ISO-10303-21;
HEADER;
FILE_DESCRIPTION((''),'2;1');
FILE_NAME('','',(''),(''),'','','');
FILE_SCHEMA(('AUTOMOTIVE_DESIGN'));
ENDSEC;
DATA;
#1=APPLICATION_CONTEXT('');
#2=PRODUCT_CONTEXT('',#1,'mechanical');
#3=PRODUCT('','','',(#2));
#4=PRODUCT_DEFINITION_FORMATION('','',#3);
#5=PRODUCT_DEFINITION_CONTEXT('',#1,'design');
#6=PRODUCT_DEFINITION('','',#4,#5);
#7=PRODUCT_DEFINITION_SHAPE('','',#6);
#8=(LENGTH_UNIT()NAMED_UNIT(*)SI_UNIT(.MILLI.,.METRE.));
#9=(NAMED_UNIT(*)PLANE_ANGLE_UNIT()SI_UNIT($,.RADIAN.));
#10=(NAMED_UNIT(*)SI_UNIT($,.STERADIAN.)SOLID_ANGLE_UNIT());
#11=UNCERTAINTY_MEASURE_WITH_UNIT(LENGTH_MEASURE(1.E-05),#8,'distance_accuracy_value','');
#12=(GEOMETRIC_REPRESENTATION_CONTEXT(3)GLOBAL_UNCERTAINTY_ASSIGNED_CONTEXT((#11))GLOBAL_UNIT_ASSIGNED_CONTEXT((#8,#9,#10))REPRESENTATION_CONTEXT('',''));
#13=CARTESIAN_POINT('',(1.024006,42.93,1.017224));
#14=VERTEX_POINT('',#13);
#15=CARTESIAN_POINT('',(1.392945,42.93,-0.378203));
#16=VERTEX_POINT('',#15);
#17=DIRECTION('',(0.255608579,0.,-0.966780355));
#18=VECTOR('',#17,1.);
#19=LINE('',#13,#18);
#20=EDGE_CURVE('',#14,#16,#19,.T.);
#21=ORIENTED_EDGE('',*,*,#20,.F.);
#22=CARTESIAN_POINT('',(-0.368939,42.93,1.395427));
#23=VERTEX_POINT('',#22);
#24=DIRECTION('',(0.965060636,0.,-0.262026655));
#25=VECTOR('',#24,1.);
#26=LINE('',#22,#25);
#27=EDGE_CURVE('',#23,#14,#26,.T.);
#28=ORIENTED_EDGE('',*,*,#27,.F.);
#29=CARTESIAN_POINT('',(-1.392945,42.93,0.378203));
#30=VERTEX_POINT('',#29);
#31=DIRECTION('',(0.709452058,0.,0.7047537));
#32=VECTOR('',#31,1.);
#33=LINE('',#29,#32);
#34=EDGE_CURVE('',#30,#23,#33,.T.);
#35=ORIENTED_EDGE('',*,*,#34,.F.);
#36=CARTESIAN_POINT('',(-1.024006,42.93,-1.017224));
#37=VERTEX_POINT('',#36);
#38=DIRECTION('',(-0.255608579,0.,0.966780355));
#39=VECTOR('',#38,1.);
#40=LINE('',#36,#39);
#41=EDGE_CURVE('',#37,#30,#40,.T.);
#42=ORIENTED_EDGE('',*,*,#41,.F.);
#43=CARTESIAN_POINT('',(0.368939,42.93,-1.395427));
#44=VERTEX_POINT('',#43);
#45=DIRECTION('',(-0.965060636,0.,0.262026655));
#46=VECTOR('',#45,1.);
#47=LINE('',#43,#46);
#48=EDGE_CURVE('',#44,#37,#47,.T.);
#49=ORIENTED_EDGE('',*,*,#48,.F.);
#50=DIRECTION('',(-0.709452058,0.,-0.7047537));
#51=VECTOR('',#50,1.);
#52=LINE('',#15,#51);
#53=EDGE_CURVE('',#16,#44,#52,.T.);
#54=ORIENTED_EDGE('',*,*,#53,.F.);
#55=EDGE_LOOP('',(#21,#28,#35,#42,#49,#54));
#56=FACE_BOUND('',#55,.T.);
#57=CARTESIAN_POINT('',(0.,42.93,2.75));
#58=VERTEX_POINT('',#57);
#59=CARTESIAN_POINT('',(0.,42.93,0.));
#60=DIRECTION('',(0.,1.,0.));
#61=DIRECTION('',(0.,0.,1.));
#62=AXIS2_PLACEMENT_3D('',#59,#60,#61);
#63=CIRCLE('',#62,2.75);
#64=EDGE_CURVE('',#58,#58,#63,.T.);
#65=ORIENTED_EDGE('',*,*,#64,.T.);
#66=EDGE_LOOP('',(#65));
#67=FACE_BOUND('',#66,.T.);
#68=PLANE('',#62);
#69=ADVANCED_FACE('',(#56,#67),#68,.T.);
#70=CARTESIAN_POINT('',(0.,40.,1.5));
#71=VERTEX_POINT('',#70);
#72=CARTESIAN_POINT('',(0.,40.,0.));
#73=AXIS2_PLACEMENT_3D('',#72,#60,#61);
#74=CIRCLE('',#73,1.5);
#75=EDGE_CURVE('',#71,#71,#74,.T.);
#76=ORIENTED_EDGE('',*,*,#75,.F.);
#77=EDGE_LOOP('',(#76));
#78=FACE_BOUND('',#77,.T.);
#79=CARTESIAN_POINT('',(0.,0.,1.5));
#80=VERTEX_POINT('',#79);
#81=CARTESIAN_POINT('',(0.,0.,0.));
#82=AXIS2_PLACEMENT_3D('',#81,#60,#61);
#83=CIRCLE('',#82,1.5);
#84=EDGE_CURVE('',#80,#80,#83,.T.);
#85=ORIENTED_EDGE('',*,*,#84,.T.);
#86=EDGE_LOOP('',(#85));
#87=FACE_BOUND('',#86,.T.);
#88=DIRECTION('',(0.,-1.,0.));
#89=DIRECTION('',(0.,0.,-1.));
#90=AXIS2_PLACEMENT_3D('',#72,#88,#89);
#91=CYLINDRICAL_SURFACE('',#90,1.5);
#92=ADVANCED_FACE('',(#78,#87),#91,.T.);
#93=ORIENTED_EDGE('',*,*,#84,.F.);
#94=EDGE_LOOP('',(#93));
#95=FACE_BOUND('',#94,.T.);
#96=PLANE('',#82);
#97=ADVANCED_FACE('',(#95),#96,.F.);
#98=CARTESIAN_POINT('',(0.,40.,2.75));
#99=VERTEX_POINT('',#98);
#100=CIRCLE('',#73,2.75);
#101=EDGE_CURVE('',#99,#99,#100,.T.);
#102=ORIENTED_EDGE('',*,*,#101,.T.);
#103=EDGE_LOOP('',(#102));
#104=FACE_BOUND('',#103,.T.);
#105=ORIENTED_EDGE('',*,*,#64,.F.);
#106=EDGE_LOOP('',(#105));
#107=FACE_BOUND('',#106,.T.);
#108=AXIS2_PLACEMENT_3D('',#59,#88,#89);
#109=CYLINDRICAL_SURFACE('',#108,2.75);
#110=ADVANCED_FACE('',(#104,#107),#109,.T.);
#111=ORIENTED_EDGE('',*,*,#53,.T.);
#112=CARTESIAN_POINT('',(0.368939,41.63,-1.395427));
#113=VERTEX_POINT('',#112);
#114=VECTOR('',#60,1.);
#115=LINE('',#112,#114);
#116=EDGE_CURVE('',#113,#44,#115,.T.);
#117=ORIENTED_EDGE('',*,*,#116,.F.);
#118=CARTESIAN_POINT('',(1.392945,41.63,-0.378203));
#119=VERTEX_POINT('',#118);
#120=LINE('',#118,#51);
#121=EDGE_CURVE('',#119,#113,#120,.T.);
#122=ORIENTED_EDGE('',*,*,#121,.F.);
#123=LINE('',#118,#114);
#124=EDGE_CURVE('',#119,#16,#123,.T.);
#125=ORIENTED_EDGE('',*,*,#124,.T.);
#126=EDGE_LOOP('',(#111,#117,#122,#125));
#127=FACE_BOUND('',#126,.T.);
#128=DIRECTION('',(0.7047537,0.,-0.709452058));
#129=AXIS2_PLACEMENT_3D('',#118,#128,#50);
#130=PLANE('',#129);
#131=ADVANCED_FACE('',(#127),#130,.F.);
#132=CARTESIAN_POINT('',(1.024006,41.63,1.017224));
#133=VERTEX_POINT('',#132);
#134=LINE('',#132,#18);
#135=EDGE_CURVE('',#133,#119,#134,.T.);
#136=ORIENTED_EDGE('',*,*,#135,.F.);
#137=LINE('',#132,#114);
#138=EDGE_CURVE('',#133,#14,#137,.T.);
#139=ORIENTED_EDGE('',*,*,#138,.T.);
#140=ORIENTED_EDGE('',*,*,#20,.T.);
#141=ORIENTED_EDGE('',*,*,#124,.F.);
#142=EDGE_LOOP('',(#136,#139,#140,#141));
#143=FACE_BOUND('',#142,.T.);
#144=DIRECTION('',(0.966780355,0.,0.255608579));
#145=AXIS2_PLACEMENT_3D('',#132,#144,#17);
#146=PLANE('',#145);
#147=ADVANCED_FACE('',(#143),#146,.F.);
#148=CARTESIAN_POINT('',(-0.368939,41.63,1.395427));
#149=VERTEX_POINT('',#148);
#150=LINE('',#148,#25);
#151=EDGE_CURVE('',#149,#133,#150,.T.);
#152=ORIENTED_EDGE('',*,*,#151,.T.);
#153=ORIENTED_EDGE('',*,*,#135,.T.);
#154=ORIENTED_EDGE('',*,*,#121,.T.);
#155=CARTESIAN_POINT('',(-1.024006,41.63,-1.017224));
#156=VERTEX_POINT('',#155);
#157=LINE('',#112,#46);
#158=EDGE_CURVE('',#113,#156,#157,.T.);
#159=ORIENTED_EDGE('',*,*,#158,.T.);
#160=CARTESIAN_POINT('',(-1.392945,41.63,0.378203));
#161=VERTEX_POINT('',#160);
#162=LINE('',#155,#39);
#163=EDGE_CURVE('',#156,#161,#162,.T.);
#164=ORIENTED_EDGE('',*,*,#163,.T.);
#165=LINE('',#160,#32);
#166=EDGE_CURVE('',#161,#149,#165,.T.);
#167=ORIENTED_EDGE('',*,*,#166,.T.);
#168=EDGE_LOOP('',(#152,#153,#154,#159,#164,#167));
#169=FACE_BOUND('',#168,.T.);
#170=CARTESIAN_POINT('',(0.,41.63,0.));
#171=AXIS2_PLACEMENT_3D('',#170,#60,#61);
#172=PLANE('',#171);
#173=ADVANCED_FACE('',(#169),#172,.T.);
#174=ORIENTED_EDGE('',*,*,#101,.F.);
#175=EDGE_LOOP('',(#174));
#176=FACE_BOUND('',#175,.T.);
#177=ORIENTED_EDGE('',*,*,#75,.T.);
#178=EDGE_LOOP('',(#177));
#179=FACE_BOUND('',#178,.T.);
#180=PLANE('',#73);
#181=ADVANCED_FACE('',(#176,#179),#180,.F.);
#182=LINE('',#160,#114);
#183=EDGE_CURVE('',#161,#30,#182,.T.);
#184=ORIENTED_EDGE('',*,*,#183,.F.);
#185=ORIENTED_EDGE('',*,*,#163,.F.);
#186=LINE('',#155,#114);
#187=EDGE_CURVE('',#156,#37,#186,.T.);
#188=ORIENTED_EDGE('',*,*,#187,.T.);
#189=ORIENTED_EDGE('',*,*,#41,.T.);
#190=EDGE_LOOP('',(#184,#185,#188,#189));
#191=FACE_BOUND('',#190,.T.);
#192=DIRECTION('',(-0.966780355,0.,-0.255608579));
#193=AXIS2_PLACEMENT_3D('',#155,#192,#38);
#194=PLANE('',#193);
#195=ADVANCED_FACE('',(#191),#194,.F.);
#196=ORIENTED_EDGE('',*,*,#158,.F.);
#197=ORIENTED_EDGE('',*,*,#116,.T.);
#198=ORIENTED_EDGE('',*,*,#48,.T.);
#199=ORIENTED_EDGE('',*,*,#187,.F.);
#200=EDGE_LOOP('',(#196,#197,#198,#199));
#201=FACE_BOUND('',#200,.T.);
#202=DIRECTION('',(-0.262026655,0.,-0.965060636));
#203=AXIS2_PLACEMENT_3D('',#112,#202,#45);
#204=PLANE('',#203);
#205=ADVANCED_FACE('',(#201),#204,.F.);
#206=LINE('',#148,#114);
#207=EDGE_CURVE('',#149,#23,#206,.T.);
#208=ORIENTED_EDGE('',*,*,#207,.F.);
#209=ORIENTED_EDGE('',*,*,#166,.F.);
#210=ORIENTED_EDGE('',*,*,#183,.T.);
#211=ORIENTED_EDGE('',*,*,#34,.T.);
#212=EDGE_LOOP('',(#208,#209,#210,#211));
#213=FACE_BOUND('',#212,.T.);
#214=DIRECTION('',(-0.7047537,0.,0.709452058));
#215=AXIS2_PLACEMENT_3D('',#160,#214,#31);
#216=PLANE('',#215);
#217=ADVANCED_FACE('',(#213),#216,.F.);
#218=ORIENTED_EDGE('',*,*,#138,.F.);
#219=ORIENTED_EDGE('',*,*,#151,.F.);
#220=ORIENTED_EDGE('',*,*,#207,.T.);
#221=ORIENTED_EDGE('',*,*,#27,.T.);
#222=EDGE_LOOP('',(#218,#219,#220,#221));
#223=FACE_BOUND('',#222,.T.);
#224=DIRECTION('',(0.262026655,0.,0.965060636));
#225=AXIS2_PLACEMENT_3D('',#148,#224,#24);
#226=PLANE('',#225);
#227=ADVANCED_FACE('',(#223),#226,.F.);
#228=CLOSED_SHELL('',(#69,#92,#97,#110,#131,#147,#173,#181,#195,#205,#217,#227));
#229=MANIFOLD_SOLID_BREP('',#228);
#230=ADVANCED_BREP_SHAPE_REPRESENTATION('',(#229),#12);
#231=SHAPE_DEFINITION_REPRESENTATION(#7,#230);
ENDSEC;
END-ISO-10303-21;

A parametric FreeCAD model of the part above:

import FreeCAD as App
import Part
import Sketcher

V = App.Vector
Q = App.Units.Quantity


def add_polygon(sketch, points):
    """Adds a closed chain of lines whose ends are joined by coincident constraints."""
    first, n = sketch.GeometryCount, len(points)
    for a, b in zip(points, points[1:] + points[:1]):
        sketch.addGeometry(Part.LineSegment(App.Vector(*a, 0), App.Vector(*b, 0)), False)
    for i in range(n):
        sketch.addConstraint(Sketcher.Constraint("Coincident", first + i, 2, first + (i + 1) % n, 1))

doc = App.newDocument("Part")
body = doc.addObject("PartDesign::Body", "Body")

# Sketch on XZ plane
sketch1 = body.newObject("Sketcher::SketchObject", "Sketch")
sketch1.AttachmentSupport = (doc.getObject("XZ_Plane"), [""])
sketch1.MapMode = "FlatFace"
sketch1.addGeometry(Part.Circle(V(0, 0, 0), V(0, 0, 1), 1.5), False)
sketch1.addConstraint([
    Sketcher.Constraint("Coincident", 0, 3, -1, 1),
    Sketcher.Constraint("Diameter", 0, Q("3 mm")),
])
pad1 = body.newObject("PartDesign::Pad", "Pad")
pad1.Profile = sketch1
pad1.Length = 40
pad1.Reversed = True

# Sketch on XZ plane
sketch2 = body.newObject("Sketcher::SketchObject", "Sketch001")
sketch2.AttachmentSupport = (doc.getObject("XZ_Plane"), [""])
sketch2.MapMode = "FlatFace"
sketch2.AttachmentOffset = App.Placement(V(0, 0, -40), App.Rotation())
sketch2.addGeometry(Part.Circle(V(0, 0, 0), V(0, 0, 1), 2.8), False)
sketch2.addConstraint([
    Sketcher.Constraint("Coincident", 0, 3, -1, 1),
    Sketcher.Constraint("Diameter", 0, Q("5.5 mm")),
])
pad2 = body.newObject("PartDesign::Pad", "Pad001")
pad2.Profile = sketch2
pad2.Length = 2.93
pad2.Reversed = True

# Sketch on XZ plane
sketch3 = body.newObject("Sketcher::SketchObject", "Sketch002")
sketch3.AttachmentSupport = (doc.getObject("XZ_Plane"), [""])
sketch3.MapMode = "FlatFace"
sketch3.AttachmentOffset = App.Placement(V(0, 0, -42.93), App.Rotation())
add_polygon(sketch3, [(1, 1), (1.4, -0.4), (0.4, -1.4), (-1, -1), (-1.4, 0.4), (-0.4, 1.4)])  # lines 0-5
sketch3.addConstraint([
    Sketcher.Constraint("Symmetric", 0, 2, 3, 2, -1, 1),
    Sketcher.Constraint("Symmetric", 1, 2, 4, 2, -1, 1),
    Sketcher.Constraint("Symmetric", 2, 2, 5, 2, -1, 1),
    Sketcher.Constraint("Equal", 0, 1),
    Sketcher.Constraint("Equal", 1, 2),
    Sketcher.Constraint("DistanceX", -1, 1, 1, 2, Q("0.368939 mm")),
    Sketcher.Constraint("DistanceX", 2, 2, 0, 2, Q("2.416951 mm")),
    Sketcher.Constraint("DistanceY", 2, 2, 0, 2, Q("0.639021 mm")),
    Sketcher.Constraint("DistanceX", 3, 2, 2, 2, Q("0.368939 mm")),
])
pocket1 = body.newObject("PartDesign::Pocket", "Pocket")
pocket1.Profile = sketch3
pocket1.Length = 1.3
pocket1.Reversed = True

doc.recompute()
